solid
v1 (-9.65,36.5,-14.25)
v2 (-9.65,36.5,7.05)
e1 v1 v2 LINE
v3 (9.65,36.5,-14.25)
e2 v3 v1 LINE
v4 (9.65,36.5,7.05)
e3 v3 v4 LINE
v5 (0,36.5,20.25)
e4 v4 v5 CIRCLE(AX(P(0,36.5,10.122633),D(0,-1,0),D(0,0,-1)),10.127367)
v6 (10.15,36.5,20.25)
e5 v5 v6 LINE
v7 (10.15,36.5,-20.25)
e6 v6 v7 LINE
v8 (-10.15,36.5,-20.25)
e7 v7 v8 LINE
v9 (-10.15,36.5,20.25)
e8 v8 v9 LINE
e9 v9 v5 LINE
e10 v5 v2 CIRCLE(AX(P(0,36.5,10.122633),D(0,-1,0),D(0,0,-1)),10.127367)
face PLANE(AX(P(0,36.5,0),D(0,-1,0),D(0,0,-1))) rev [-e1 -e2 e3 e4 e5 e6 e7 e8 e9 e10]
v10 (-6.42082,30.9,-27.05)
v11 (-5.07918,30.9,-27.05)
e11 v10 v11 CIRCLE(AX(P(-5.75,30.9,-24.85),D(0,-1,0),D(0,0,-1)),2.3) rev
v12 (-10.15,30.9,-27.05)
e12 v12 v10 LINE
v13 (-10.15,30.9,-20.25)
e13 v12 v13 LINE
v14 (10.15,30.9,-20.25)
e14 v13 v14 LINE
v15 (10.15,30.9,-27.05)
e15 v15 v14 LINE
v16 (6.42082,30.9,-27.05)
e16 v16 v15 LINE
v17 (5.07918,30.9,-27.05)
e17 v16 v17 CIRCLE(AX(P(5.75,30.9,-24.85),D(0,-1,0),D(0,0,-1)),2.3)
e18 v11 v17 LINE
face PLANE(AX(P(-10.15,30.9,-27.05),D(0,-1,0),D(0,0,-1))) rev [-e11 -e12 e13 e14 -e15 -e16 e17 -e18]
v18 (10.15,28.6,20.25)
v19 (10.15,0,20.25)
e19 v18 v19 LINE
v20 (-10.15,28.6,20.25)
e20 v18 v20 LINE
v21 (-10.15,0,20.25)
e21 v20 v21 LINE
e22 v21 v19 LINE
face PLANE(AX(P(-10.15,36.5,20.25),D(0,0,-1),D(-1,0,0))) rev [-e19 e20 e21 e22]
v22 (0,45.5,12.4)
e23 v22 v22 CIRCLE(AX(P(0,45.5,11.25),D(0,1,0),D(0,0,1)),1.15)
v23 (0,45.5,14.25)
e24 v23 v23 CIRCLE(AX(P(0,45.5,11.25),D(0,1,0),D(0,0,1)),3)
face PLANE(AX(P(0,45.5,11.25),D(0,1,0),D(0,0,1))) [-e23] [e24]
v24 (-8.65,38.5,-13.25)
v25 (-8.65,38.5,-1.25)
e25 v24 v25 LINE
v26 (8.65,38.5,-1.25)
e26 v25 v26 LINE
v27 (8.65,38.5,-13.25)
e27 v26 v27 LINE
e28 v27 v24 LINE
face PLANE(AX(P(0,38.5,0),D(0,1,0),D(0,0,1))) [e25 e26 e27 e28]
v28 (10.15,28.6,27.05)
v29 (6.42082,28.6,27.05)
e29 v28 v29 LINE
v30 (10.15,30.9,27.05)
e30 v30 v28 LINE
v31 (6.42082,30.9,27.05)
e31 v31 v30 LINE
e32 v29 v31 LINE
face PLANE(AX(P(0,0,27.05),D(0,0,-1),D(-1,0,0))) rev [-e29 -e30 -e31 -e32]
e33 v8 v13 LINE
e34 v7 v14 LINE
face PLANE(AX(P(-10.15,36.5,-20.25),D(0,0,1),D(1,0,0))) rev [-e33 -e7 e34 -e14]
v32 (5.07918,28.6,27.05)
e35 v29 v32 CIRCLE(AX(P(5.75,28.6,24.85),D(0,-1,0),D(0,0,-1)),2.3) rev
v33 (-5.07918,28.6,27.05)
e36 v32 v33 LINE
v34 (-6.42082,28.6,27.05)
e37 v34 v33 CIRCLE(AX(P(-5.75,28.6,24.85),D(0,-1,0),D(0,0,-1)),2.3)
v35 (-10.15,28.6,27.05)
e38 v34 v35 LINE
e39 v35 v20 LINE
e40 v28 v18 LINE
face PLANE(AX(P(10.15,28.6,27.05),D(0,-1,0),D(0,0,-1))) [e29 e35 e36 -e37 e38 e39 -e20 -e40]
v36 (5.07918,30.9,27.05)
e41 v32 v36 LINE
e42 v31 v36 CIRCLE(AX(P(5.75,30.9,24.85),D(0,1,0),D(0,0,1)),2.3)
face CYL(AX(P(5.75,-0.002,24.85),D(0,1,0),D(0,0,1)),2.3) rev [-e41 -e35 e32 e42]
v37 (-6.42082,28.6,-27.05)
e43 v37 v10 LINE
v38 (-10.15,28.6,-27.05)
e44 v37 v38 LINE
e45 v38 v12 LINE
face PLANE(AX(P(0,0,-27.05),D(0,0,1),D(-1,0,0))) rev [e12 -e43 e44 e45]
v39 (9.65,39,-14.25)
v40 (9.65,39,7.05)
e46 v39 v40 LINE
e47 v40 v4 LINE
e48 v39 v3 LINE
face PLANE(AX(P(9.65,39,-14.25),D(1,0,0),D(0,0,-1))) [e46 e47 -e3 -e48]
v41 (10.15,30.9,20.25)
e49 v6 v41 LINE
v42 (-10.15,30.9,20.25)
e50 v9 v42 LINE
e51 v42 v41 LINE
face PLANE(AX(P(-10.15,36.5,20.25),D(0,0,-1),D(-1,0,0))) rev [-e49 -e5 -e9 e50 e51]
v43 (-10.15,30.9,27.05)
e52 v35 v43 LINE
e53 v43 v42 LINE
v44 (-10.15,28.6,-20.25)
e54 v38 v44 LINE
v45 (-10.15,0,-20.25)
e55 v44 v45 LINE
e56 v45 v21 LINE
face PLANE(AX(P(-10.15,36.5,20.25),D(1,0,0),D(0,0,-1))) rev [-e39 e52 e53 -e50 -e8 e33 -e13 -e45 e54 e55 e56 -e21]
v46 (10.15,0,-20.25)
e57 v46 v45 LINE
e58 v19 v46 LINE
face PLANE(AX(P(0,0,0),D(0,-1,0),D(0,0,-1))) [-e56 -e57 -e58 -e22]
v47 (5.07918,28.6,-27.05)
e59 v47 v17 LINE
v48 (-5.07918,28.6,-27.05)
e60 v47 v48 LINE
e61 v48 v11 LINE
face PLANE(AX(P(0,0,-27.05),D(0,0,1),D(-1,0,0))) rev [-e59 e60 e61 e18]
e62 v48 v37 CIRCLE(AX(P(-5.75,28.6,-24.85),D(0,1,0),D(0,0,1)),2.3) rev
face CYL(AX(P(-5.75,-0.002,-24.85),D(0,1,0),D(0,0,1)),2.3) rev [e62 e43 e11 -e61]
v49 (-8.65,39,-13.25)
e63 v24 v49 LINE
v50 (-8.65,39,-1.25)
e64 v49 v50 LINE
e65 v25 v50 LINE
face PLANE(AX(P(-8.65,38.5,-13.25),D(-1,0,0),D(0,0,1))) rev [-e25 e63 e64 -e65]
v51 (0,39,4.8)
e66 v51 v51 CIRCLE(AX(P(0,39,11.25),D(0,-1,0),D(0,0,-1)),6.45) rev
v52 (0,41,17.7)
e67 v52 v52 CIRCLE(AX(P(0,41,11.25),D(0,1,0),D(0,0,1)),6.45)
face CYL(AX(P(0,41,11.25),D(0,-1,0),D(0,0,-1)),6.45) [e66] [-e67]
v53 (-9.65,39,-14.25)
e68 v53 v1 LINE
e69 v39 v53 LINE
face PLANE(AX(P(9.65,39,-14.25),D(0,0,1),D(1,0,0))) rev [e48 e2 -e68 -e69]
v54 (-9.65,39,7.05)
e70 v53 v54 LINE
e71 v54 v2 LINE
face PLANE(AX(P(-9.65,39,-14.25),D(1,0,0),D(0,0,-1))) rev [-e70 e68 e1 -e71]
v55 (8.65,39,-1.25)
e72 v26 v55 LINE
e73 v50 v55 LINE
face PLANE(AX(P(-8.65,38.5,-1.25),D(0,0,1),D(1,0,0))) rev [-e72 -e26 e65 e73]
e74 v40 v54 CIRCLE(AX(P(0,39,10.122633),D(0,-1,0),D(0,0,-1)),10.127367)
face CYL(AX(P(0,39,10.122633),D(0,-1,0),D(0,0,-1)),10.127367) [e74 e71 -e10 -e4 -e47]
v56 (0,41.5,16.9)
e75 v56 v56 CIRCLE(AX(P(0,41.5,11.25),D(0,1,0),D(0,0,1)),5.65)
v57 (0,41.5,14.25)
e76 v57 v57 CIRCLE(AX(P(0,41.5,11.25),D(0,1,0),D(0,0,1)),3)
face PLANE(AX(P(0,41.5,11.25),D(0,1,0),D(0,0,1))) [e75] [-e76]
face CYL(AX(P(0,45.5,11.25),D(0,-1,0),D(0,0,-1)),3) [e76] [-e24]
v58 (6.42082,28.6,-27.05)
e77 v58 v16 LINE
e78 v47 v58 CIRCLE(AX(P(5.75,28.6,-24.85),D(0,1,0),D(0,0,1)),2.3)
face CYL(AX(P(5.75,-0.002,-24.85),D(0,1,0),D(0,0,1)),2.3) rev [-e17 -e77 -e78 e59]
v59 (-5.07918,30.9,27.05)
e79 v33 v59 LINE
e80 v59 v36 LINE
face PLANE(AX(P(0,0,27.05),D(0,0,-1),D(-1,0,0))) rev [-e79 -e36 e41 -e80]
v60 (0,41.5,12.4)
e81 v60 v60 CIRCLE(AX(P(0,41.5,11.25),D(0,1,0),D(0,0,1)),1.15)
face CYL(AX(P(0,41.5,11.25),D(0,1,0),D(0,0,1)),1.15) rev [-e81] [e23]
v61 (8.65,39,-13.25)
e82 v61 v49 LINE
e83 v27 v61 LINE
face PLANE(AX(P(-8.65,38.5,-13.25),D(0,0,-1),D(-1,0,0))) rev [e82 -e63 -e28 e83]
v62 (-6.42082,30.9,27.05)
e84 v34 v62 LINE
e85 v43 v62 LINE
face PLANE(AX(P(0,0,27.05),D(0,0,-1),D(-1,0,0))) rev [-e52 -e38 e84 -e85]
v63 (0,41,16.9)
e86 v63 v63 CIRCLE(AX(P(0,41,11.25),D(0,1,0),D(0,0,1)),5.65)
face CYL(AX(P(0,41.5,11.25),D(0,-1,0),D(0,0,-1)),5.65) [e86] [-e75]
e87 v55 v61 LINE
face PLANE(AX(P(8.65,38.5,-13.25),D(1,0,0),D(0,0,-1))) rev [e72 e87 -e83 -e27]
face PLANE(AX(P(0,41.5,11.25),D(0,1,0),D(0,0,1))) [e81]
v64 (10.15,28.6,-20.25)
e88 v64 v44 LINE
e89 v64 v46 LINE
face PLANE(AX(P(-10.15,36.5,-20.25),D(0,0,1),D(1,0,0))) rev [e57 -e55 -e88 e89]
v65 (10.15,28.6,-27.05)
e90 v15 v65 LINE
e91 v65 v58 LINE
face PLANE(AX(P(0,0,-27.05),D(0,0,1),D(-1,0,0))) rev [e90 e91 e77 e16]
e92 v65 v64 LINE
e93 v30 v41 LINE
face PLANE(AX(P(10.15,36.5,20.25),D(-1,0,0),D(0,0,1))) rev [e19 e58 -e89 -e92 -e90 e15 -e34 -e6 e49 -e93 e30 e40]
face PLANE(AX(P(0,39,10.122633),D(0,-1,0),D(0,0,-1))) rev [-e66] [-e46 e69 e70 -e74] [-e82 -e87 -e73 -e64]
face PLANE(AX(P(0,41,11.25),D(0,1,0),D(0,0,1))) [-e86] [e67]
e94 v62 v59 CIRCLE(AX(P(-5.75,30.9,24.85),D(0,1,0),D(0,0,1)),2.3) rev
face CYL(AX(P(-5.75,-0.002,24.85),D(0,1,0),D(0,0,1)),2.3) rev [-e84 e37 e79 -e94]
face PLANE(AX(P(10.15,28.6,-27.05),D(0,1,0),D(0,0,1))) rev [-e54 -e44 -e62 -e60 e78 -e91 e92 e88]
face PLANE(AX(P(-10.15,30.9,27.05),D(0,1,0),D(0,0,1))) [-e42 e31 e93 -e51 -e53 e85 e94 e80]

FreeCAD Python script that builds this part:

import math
import FreeCAD as App
import Part
import Sketcher

V = App.Vector

doc = App.newDocument("Part")
params = doc.addObject("Spreadsheet::Sheet", "Params")
for row, (alias, value) in enumerate([
    ("sketch1_width", "20.3 mm"),
    ("sketch1_height", "40.5 mm"),
    ("pad1_length", "36.5 mm"),
    ("sketch2_width", "20.3 mm"),
    ("sketch2_height", "2.3 mm"),
    ("pad2_length", "6.8 mm"),
    ("sketch3_diameter", "4.6 mm"),
    ("pocket1_length", "2.3 mm"),
    ("sketch4_width", "19.3 mm"),
    ("sketch4_height", "21.3 mm"),
    ("pad3_length", "2.5 mm"),
    ("sketch5_diameter", "12.9 mm"),
    ("pad4_length", "2 mm"),
    ("sketch6_diameter", "11.3 mm"),
    ("pad5_length", "0.5 mm"),
    ("sketch7_diameter", "6 mm"),
    ("pad6_length", "4 mm"),
    ("sketch8_diameter", "2.3 mm"),
    ("pocket2_length", "4 mm"),
    ("sketch9_height", "12 mm"),
    ("sketch9_width", "17.3 mm"),
    ("pocket3_length", "0.5 mm"),
], start=1):
    params.set(f"A{row}", alias)
    params.set(f"B{row}", "=" + value)
    params.setAlias(f"B{row}", alias)

body = doc.addObject("PartDesign::Body", "Body")

sketch1 = body.newObject("Sketcher::SketchObject", "Sketch")
sketch1.AttachmentSupport = (doc.getObject("XZ_Plane"), [""])
sketch1.MapMode = "FlatFace"
sketch1.addGeometry(Part.LineSegment(V(-10.15, -20.25, 0), V(-10.15, 20.25, 0)), False)
sketch1.addGeometry(Part.LineSegment(V(-10.15, 20.25, 0), V(10.15, 20.25, 0)), False)
sketch1.addGeometry(Part.LineSegment(V(10.15, 20.25, 0), V(10.15, -20.25, 0)), False)
sketch1.addGeometry(Part.LineSegment(V(10.15, -20.25, 0), V(-10.15, -20.25, 0)), False)
sketch1.addConstraint(Sketcher.Constraint("Coincident", 0, 2, 1, 1))
sketch1.addConstraint(Sketcher.Constraint("Coincident", 1, 2, 2, 1))
sketch1.addConstraint(Sketcher.Constraint("Coincident", 2, 2, 3, 1))
sketch1.addConstraint(Sketcher.Constraint("Coincident", 3, 2, 0, 1))
sketch1.addConstraint(Sketcher.Constraint("Vertical", 0))
sketch1.addConstraint(Sketcher.Constraint("Horizontal", 1))
sketch1.addConstraint(Sketcher.Constraint("Vertical", 2))
sketch1.addConstraint(Sketcher.Constraint("Horizontal", 3))
sketch1.addConstraint(Sketcher.Constraint("Symmetric", 0, 2, 2, 2, -1, 1))
sketch1.addConstraint(Sketcher.Constraint("DistanceX", 1, 1, 1, 2, 20.3))
sketch1.addConstraint(Sketcher.Constraint("DistanceY", 0, 1, 0, 2, 40.5))
sketch1.setExpression("Constraints[9]", "Params.sketch1_width")
sketch1.setExpression("Constraints[10]", "Params.sketch1_height")
pad1 = body.newObject("PartDesign::Pad", "Pad")
pad1.Profile = sketch1
pad1.setExpression("Length", "Params.pad1_length")
pad1.Reversed = True

sketch2 = body.newObject("Sketcher::SketchObject", "Sketch001")
sketch2.AttachmentSupport = (doc.getObject("XY_Plane"), [""])
sketch2.MapMode = "FlatFace"
sketch2.AttachmentOffset = App.Placement(V(0, 0, 20.25), App.Rotation())
sketch2.addGeometry(Part.LineSegment(V(-10.15, 30.9, 0), V(-10.15, 28.6, 0)), False)
sketch2.addGeometry(Part.LineSegment(V(-10.15, 28.6, 0), V(10.15, 28.6, 0)), False)
sketch2.addGeometry(Part.LineSegment(V(10.15, 28.6, 0), V(10.15, 30.9, 0)), False)
sketch2.addGeometry(Part.LineSegment(V(10.15, 30.9, 0), V(-10.15, 30.9, 0)), False)
sketch2.addConstraint(Sketcher.Constraint("Coincident", 0, 2, 1, 1))
sketch2.addConstraint(Sketcher.Constraint("Coincident", 1, 2, 2, 1))
sketch2.addConstraint(Sketcher.Constraint("Coincident", 2, 2, 3, 1))
sketch2.addConstraint(Sketcher.Constraint("Coincident", 3, 2, 0, 1))
sketch2.addConstraint(Sketcher.Constraint("Vertical", 0))
sketch2.addConstraint(Sketcher.Constraint("Horizontal", 1))
sketch2.addConstraint(Sketcher.Constraint("Vertical", 2))
sketch2.addConstraint(Sketcher.Constraint("Horizontal", 3))
sketch2.addConstraint(Sketcher.Constraint("DistanceX", 1, 1, 1, 2, 20.3))
sketch2.addConstraint(Sketcher.Constraint("DistanceY", 0, 2, 0, 1, 2.3))
sketch2.addConstraint(Sketcher.Constraint("DistanceY", -1, 1, 0, 2, 28.6))
sketch2.addConstraint(Sketcher.Constraint("DistanceX", 0, 2, -1, 1, 10.15))
sketch2.setExpression("Constraints[8]", "Params.sketch2_width")
sketch2.setExpression("Constraints[9]", "Params.sketch2_height")
pad2 = body.newObject("PartDesign::Pad", "Pad001")
pad2.Profile = sketch2
pad2.setExpression("Length", "Params.pad2_length")

sketch3 = body.newObject("Sketcher::SketchObject", "Sketch002")
sketch3.AttachmentSupport = (doc.getObject("XZ_Plane"), [""])
sketch3.MapMode = "FlatFace"
sketch3.AttachmentOffset = App.Placement(V(0, 0, -30.9), App.Rotation())
sketch3.addGeometry(Part.Circle(V(5.75, 24.85, 0), V(0, 0, 1), 2.3), False)
sketch3.addGeometry(Part.Circle(V(-5.75, 24.85, 0), V(0, 0, 1), 2.3), False)
sketch3.addConstraint(Sketcher.Constraint("Equal", 0, 1))
sketch3.addConstraint(Sketcher.Constraint("Symmetric", 0, 3, 1, 3, -2))
sketch3.addConstraint(Sketcher.Constraint("Diameter", 0, 4.6))
sketch3.addConstraint(Sketcher.Constraint("DistanceX", 1, 3, 0, 3, 11.5))
sketch3.addConstraint(Sketcher.Constraint("DistanceY", -1, 1, 0, 3, 24.85))
sketch3.setExpression("Constraints[2]", "Params.sketch3_diameter")
pocket1 = body.newObject("PartDesign::Pocket", "Pocket")
pocket1.Profile = sketch3
pocket1.setExpression("Length", "Params.pocket1_length")
pocket1.Reversed = True
doc.recompute()

mirrored = body.newObject("PartDesign::Mirrored", "Mirrored")
mirrored.Originals = [pad2, pocket1]
mirrored.MirrorPlane = (doc.getObject("XY_Plane"), [""])
body.Tip = mirrored

sketch4 = body.newObject("Sketcher::SketchObject", "Sketch003")
sketch4.AttachmentSupport = (doc.getObject("XZ_Plane"), [""])
sketch4.MapMode = "FlatFace"
sketch4.AttachmentOffset = App.Placement(V(0, 0, -36.5), App.Rotation())
sketch4.addGeometry(Part.LineSegment(V(-9.65, -14.25, 0), V(-9.65, 7.05, 0)), False)
sketch4.addGeometry(Part.ArcOfCircle(Part.Circle(V(0, 10.122633, 0), V(0, 0, 1), 10.127367), math.radians(-17.661866), math.radians(197.661866)), False)
sketch4.addGeometry(Part.LineSegment(V(9.65, 7.05, 0), V(9.65, -14.25, 0)), False)
sketch4.addGeometry(Part.LineSegment(V(9.65, -14.25, 0), V(-9.65, -14.25, 0)), False)
sketch4.addConstraint(Sketcher.Constraint("Coincident", 0, 2, 1, 2))
sketch4.addConstraint(Sketcher.Constraint("Coincident", 1, 1, 2, 1))
sketch4.addConstraint(Sketcher.Constraint("Coincident", 2, 2, 3, 1))
sketch4.addConstraint(Sketcher.Constraint("Coincident", 3, 2, 0, 1))
sketch4.addConstraint(Sketcher.Constraint("Vertical", 0))
sketch4.addConstraint(Sketcher.Constraint("Vertical", 2))
sketch4.addConstraint(Sketcher.Constraint("Horizontal", 3))
sketch4.addConstraint(Sketcher.Constraint("Symmetric", 0, 2, 1, 1, -2))
sketch4.addConstraint(Sketcher.Constraint("DistanceX", 3, 2, 3, 1, 19.3))
sketch4.addConstraint(Sketcher.Constraint("DistanceY", 0, 1, 0, 2, 21.3))
sketch4.addConstraint(Sketcher.Constraint("DistanceY", -1, 1, 0, 2, 7.05))
sketch4.addConstraint(Sketcher.Constraint("Radius", 1, 10.127367))
sketch4.setExpression("Constraints[8]", "Params.sketch4_width")
sketch4.setExpression("Constraints[9]", "Params.sketch4_height")
pad3 = body.newObject("PartDesign::Pad", "Pad002")
pad3.Profile = sketch4
pad3.setExpression("Length", "Params.pad3_length")
pad3.Reversed = True

sketch5 = body.newObject("Sketcher::SketchObject", "Sketch004")
sketch5.AttachmentSupport = (doc.getObject("XZ_Plane"), [""])
sketch5.MapMode = "FlatFace"
sketch5.AttachmentOffset = App.Placement(V(0, 0, -39), App.Rotation())
sketch5.addGeometry(Part.Circle(V(0, 11.25, 0), V(0, 0, 1), 6.45), False)
sketch5.addConstraint(Sketcher.Constraint("PointOnObject", 0, 3, -2))
sketch5.addConstraint(Sketcher.Constraint("Diameter", 0, 12.9))
sketch5.addConstraint(Sketcher.Constraint("DistanceY", -1, 1, 0, 3, 11.25))
sketch5.setExpression("Constraints[1]", "Params.sketch5_diameter")
pad4 = body.newObject("PartDesign::Pad", "Pad003")
pad4.Profile = sketch5
pad4.setExpression("Length", "Params.pad4_length")
pad4.Reversed = True

sketch6 = body.newObject("Sketcher::SketchObject", "Sketch005")
sketch6.AttachmentSupport = (doc.getObject("XZ_Plane"), [""])
sketch6.MapMode = "FlatFace"
sketch6.AttachmentOffset = App.Placement(V(0, 0, -41), App.Rotation())
sketch6.addGeometry(Part.Circle(V(0, 11.25, 0), V(0, 0, 1), 5.65), False)
sketch6.addConstraint(Sketcher.Constraint("PointOnObject", 0, 3, -2))
sketch6.addConstraint(Sketcher.Constraint("Diameter", 0, 11.3))
sketch6.addConstraint(Sketcher.Constraint("DistanceY", -1, 1, 0, 3, 11.25))
sketch6.setExpression("Constraints[1]", "Params.sketch6_diameter")
pad5 = body.newObject("PartDesign::Pad", "Pad004")
pad5.Profile = sketch6
pad5.setExpression("Length", "Params.pad5_length")
pad5.Reversed = True

sketch7 = body.newObject("Sketcher::SketchObject", "Sketch006")
sketch7.AttachmentSupport = (doc.getObject("XZ_Plane"), [""])
sketch7.MapMode = "FlatFace"
sketch7.AttachmentOffset = App.Placement(V(0, 0, -41.5), App.Rotation())
sketch7.addGeometry(Part.Circle(V(0, 11.25, 0), V(0, 0, 1), 3), False)
sketch7.addConstraint(Sketcher.Constraint("PointOnObject", 0, 3, -2))
sketch7.addConstraint(Sketcher.Constraint("Diameter", 0, 6.0))
sketch7.addConstraint(Sketcher.Constraint("DistanceY", -1, 1, 0, 3, 11.25))
sketch7.setExpression("Constraints[1]", "Params.sketch7_diameter")
pad6 = body.newObject("PartDesign::Pad", "Pad005")
pad6.Profile = sketch7
pad6.setExpression("Length", "Params.pad6_length")
pad6.Reversed = True

sketch8 = body.newObject("Sketcher::SketchObject", "Sketch007")
sketch8.AttachmentSupport = (doc.getObject("XZ_Plane"), [""])
sketch8.MapMode = "FlatFace"
sketch8.AttachmentOffset = App.Placement(V(0, 0, -45.5), App.Rotation())
sketch8.addGeometry(Part.Circle(V(0, 11.25, 0), V(0, 0, 1), 1.15), False)
sketch8.addConstraint(Sketcher.Constraint("PointOnObject", 0, 3, -2))
sketch8.addConstraint(Sketcher.Constraint("Diameter", 0, 2.3))
sketch8.addConstraint(Sketcher.Constraint("DistanceY", -1, 1, 0, 3, 11.25))
sketch8.setExpression("Constraints[1]", "Params.sketch8_diameter")
pocket2 = body.newObject("PartDesign::Pocket", "Pocket001")
pocket2.Profile = sketch8
pocket2.setExpression("Length", "Params.pocket2_length")
pocket2.Reversed = True

sketch9 = body.newObject("Sketcher::SketchObject", "Sketch008")
sketch9.AttachmentSupport = (doc.getObject("XZ_Plane"), [""])
sketch9.MapMode = "FlatFace"
sketch9.AttachmentOffset = App.Placement(V(0, 0, -39), App.Rotation())
sketch9.addGeometry(Part.LineSegment(V(-8.65, -13.25, 0), V(-8.65, -1.25, 0)), False)
sketch9.addGeometry(Part.LineSegment(V(-8.65, -1.25, 0), V(8.65, -1.25, 0)), False)
sketch9.addGeometry(Part.LineSegment(V(8.65, -1.25, 0), V(8.65, -13.25, 0)), False)
sketch9.addGeometry(Part.LineSegment(V(8.65, -13.25, 0), V(-8.65, -13.25, 0)), False)
sketch9.addConstraint(Sketcher.Constraint("Coincident", 0, 2, 1, 1))
sketch9.addConstraint(Sketcher.Constraint("Coincident", 1, 2, 2, 1))
sketch9.addConstraint(Sketcher.Constraint("Coincident", 2, 2, 3, 1))
sketch9.addConstraint(Sketcher.Constraint("Coincident", 3, 2, 0, 1))
sketch9.addConstraint(Sketcher.Constraint("Vertical", 0))
sketch9.addConstraint(Sketcher.Constraint("Horizontal", 1))
sketch9.addConstraint(Sketcher.Constraint("Vertical", 2))
sketch9.addConstraint(Sketcher.Constraint("Horizontal", 3))
sketch9.addConstraint(Sketcher.Constraint("DistanceY", 0, 1, 0, 2, 12.0))
sketch9.addConstraint(Sketcher.Constraint("DistanceX", 1, 1, 1, 2, 17.3))
sketch9.addConstraint(Sketcher.Constraint("DistanceX", 0, 2, -1, 1, 8.65))
sketch9.addConstraint(Sketcher.Constraint("DistanceY", 0, 2, -1, 1, 1.25))
sketch9.setExpression("Constraints[8]", "Params.sketch9_height")
sketch9.setExpression("Constraints[9]", "Params.sketch9_width")
pocket3 = body.newObject("PartDesign::Pocket", "Pocket002")
pocket3.Profile = sketch9
pocket3.setExpression("Length", "Params.pocket3_length")
pocket3.Reversed = True

doc.recompute()
